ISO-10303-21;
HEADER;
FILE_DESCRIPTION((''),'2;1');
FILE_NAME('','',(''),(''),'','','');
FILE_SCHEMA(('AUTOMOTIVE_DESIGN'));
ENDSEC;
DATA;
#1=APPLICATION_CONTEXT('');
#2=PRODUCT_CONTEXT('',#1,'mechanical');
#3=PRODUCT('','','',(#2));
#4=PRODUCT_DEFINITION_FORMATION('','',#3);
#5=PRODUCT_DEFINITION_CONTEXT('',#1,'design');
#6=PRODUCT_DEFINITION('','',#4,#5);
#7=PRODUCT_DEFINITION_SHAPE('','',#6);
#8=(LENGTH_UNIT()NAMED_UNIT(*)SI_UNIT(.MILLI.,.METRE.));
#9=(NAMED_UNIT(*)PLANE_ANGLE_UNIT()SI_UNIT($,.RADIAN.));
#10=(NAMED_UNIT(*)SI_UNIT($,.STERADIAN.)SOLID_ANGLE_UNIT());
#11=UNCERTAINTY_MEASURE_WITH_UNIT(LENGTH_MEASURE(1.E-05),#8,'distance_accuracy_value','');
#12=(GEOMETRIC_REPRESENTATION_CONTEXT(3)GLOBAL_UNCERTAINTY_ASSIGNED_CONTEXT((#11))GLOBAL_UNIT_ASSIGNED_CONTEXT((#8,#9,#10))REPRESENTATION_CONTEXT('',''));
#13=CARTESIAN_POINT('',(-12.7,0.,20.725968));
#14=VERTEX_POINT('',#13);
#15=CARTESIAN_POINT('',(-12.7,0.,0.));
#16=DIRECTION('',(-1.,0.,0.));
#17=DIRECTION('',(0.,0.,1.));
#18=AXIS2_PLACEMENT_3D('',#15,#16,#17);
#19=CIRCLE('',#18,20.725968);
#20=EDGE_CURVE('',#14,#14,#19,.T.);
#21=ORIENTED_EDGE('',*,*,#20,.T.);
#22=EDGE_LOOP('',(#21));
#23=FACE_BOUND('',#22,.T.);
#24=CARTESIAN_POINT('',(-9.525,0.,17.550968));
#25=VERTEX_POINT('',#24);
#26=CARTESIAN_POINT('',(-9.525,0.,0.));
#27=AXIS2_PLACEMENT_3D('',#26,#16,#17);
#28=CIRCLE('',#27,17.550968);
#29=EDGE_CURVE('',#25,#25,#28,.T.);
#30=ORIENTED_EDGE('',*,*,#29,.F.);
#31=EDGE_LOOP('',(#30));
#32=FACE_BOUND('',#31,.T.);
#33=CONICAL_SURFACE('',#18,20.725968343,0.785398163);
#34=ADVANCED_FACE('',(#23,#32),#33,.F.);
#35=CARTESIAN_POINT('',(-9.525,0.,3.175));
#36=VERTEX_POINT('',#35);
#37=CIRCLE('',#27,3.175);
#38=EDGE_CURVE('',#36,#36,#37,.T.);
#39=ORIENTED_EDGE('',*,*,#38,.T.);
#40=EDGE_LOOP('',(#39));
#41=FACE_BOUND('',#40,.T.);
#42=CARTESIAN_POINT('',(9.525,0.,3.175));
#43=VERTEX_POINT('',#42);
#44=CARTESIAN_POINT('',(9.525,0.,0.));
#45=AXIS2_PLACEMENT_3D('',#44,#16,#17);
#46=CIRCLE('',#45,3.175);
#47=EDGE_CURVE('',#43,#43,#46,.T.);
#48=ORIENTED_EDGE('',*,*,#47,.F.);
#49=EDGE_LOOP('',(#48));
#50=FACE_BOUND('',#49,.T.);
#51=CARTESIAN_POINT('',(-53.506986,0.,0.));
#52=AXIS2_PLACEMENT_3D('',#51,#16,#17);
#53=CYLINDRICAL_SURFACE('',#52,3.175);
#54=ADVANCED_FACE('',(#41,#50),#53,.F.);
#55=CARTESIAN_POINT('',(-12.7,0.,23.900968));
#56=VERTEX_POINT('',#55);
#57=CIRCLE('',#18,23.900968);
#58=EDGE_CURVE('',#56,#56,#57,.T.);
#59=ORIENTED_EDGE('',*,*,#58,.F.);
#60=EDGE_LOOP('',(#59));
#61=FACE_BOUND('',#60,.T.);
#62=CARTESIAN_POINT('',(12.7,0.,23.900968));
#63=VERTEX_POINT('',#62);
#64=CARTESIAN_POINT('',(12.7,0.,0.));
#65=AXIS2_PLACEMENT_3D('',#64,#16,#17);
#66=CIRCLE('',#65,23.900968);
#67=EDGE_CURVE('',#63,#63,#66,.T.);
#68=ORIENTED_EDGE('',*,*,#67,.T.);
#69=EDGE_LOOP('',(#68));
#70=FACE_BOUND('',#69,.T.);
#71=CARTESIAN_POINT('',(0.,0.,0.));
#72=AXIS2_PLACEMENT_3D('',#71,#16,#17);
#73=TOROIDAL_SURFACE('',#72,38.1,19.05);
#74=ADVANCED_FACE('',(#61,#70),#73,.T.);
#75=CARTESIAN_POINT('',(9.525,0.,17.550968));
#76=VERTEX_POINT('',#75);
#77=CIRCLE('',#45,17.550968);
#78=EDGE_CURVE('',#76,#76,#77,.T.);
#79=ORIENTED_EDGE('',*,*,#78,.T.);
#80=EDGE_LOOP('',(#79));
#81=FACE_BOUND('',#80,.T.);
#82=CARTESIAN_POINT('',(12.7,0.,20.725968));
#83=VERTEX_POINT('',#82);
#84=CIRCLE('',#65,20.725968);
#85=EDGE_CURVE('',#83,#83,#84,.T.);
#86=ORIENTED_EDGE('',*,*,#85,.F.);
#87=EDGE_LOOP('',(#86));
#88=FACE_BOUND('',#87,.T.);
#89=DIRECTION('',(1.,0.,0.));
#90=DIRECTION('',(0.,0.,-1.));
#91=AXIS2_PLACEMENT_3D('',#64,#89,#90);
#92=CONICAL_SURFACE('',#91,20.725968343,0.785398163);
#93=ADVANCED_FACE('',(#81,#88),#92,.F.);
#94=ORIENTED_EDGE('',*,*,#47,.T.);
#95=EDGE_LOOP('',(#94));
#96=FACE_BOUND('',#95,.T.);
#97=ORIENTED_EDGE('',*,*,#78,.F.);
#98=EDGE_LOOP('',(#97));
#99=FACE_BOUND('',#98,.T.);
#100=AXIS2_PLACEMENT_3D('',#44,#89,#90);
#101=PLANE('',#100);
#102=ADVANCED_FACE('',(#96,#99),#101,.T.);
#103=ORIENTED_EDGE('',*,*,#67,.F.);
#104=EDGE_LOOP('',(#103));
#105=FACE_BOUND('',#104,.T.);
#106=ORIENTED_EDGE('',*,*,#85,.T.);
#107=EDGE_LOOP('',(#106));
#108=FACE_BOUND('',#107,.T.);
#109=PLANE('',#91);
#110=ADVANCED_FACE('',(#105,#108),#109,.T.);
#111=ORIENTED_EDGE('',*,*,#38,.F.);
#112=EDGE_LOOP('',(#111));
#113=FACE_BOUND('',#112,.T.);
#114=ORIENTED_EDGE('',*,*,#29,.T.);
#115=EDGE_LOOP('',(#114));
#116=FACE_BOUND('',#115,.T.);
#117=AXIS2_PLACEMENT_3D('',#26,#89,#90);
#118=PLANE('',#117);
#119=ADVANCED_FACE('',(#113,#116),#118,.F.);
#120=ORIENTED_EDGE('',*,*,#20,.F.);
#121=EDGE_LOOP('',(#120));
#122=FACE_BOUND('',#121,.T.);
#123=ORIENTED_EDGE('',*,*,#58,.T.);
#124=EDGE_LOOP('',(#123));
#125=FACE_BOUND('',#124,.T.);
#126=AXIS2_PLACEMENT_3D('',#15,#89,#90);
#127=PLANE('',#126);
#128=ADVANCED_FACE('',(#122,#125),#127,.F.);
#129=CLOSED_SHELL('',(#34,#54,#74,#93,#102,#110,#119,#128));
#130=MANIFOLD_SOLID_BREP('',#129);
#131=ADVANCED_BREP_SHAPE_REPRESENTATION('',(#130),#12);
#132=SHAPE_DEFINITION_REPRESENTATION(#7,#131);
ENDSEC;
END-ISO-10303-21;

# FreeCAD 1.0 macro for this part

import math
import FreeCAD as App
import Part
import Sketcher
from FreeCAD import Vector
Q = App.Units.Quantity

doc = App.newDocument("Part")
body = doc.addObject("PartDesign::Body", "Body")

sketch1 = body.newObject("Sketcher::SketchObject", "Sketch")
sketch1.AttachmentSupport = (doc.getObject("XY_Plane"), [""])
sketch1.MapMode = "FlatFace"
sketch1.addGeometry(Part.ArcOfCircle(Part.Circle(Vector(0, 38.1, 0), Vector(0, 0, 1), 19.1), math.radians(-48), math.radians(228)), False)
sketch1.addGeometry(Part.LineSegment(Vector(-12.7, 23.9, 0), Vector(-12.7, 20.7, 0)), False)
sketch1.addGeometry(Part.LineSegment(Vector(-12.7, 20.7, 0), Vector(-9.5, 17.6, 0)), False)
sketch1.addGeometry(Part.LineSegment(Vector(-9.5, 17.6, 0), Vector(-9.5, 3.2, 0)), False)
sketch1.addGeometry(Part.LineSegment(Vector(-9.5, 3.2, 0), Vector(9.5, 3.2, 0)), False)
sketch1.addGeometry(Part.LineSegment(Vector(9.5, 3.2, 0), Vector(9.5, 17.6, 0)), False)
sketch1.addGeometry(Part.LineSegment(Vector(9.5, 17.6, 0), Vector(12.7, 20.7, 0)), False)
sketch1.addGeometry(Part.LineSegment(Vector(12.7, 20.7, 0), Vector(12.7, 23.9, 0)), False)
sketch1.addConstraint(Sketcher.Constraint("Coincident", 0, 2, 1, 1))
sketch1.addConstraint(Sketcher.Constraint("Coincident", 1, 2, 2, 1))
sketch1.addConstraint(Sketcher.Constraint("Coincident", 2, 2, 3, 1))
sketch1.addConstraint(Sketcher.Constraint("Coincident", 3, 2, 4, 1))
sketch1.addConstraint(Sketcher.Constraint("Coincident", 4, 2, 5, 1))
sketch1.addConstraint(Sketcher.Constraint("Coincident", 5, 2, 6, 1))
sketch1.addConstraint(Sketcher.Constraint("Coincident", 6, 2, 7, 1))
sketch1.addConstraint(Sketcher.Constraint("Coincident", 7, 2, 0, 1))
sketch1.addConstraint(Sketcher.Constraint("Vertical", 1))
sketch1.addConstraint(Sketcher.Constraint("Vertical", 3))
sketch1.addConstraint(Sketcher.Constraint("Horizontal", 4))
sketch1.addConstraint(Sketcher.Constraint("Vertical", 5))
sketch1.addConstraint(Sketcher.Constraint("Vertical", 7))
sketch1.addConstraint(Sketcher.Constraint("Symmetric", 2, 2, 5, 2, -2))
sketch1.addConstraint(Sketcher.Constraint("Symmetric", 1, 2, 6, 2, -2))
sketch1.addConstraint(Sketcher.Constraint("PointOnObject", 0, 3, -2))
sketch1.addConstraint(Sketcher.Constraint("Perpendicular", 2, 6))
sketch1.addConstraint(Sketcher.Constraint("Radius", 0, Q("0.75 in")))
sketch1.addConstraint(Sketcher.Constraint("DistanceX", 1, 2, 6, 2, Q("1 in")))
sketch1.addConstraint(Sketcher.Constraint("DistanceX", 4, 1, 4, 2, Q("0.75 in")))
sketch1.addConstraint(Sketcher.Constraint("DistanceY", -1, 1, 0, 3, Q("1.5 in")))
sketch1.addConstraint(Sketcher.Constraint("DistanceY", 1, 2, 1, 1, Q("0.125 in")))
sketch1.addConstraint(Sketcher.Constraint("DistanceY", -1, 1, 3, 2, Q("0.125 in")))
revolution = body.newObject("PartDesign::Revolution", "Revolution")
revolution.Profile = sketch1
revolution.ReferenceAxis = (sketch1, ["H_Axis"])
revolution.Angle = 360

doc.recompute()
